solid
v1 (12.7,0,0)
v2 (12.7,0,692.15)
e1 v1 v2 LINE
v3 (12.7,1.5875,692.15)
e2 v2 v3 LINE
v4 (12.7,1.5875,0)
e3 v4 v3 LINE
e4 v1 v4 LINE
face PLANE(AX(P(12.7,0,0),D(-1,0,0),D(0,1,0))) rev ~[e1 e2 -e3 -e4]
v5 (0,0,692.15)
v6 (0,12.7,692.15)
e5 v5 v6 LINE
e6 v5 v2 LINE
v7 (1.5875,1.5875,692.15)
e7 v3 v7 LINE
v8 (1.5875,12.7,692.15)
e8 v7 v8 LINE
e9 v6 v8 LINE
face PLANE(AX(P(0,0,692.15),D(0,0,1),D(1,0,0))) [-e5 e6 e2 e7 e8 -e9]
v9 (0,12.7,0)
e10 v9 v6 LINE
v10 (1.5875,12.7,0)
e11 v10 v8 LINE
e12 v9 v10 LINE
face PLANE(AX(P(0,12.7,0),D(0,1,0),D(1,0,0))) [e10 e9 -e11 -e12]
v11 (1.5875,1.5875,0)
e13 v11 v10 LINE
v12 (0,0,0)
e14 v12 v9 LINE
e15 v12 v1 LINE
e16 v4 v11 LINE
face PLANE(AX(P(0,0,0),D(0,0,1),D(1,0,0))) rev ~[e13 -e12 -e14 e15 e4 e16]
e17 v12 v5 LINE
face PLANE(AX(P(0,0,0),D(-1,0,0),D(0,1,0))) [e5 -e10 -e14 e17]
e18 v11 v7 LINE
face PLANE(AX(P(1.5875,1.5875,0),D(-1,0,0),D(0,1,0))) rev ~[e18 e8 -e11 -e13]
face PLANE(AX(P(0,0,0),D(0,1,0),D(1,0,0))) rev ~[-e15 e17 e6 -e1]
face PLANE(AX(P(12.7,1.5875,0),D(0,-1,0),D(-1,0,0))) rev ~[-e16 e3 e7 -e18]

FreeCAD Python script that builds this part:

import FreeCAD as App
import Part
import Sketcher
from FreeCAD import Vector
Q = App.Units.Quantity


def add_polygon(sketch, points):
    """Adds a closed chain of lines whose ends are joined by coincident constraints."""
    first, n = sketch.GeometryCount, len(points)
    for a, b in zip(points, points[1:] + points[:1]):
        sketch.addGeometry(Part.LineSegment(App.Vector(*a, 0), App.Vector(*b, 0)), False)
    for i in range(n):
        sketch.addConstraint(Sketcher.Constraint("Coincident", first + i, 2, first + (i + 1) % n, 1))

doc = App.newDocument("Part")
body = doc.addObject("PartDesign::Body", "Body")

# Sketch on XY plane
sketch1 = body.newObject("Sketcher::SketchObject", "Sketch")
sketch1.AttachmentSupport = (doc.getObject("XY_Plane"), [""])
sketch1.MapMode = "FlatFace"
add_polygon(sketch1, [(0, 12.7), (0, 0), (12.7, 0), (12.7, 1.6), (1.6, 1.6), (1.6, 12.7)])  # lines 0-5
sketch1.addConstraint(Sketcher.Constraint("Vertical", 0))
sketch1.addConstraint(Sketcher.Constraint("Horizontal", 1))
sketch1.addConstraint(Sketcher.Constraint("Vertical", 2))
sketch1.addConstraint(Sketcher.Constraint("Horizontal", 3))
sketch1.addConstraint(Sketcher.Constraint("Vertical", 4))
sketch1.addConstraint(Sketcher.Constraint("Horizontal", 5))
sketch1.addConstraint(Sketcher.Constraint("Coincident", 0, 2, -1, 1))
sketch1.addConstraint(Sketcher.Constraint("Equal", 1, 0))
sketch1.addConstraint(Sketcher.Constraint("Equal", 5, 2))
sketch1.addConstraint(Sketcher.Constraint("DistanceX", 1, 1, 1, 2, Q("0.5 in")))
sketch1.addConstraint(Sketcher.Constraint("DistanceX", 5, 2, 5, 1, Q("0.0625 in")))
pad1 = body.newObject("PartDesign::Pad", "Pad")
pad1.Profile = sketch1
pad1.Length = Q("27.25 in")

doc.recompute()
